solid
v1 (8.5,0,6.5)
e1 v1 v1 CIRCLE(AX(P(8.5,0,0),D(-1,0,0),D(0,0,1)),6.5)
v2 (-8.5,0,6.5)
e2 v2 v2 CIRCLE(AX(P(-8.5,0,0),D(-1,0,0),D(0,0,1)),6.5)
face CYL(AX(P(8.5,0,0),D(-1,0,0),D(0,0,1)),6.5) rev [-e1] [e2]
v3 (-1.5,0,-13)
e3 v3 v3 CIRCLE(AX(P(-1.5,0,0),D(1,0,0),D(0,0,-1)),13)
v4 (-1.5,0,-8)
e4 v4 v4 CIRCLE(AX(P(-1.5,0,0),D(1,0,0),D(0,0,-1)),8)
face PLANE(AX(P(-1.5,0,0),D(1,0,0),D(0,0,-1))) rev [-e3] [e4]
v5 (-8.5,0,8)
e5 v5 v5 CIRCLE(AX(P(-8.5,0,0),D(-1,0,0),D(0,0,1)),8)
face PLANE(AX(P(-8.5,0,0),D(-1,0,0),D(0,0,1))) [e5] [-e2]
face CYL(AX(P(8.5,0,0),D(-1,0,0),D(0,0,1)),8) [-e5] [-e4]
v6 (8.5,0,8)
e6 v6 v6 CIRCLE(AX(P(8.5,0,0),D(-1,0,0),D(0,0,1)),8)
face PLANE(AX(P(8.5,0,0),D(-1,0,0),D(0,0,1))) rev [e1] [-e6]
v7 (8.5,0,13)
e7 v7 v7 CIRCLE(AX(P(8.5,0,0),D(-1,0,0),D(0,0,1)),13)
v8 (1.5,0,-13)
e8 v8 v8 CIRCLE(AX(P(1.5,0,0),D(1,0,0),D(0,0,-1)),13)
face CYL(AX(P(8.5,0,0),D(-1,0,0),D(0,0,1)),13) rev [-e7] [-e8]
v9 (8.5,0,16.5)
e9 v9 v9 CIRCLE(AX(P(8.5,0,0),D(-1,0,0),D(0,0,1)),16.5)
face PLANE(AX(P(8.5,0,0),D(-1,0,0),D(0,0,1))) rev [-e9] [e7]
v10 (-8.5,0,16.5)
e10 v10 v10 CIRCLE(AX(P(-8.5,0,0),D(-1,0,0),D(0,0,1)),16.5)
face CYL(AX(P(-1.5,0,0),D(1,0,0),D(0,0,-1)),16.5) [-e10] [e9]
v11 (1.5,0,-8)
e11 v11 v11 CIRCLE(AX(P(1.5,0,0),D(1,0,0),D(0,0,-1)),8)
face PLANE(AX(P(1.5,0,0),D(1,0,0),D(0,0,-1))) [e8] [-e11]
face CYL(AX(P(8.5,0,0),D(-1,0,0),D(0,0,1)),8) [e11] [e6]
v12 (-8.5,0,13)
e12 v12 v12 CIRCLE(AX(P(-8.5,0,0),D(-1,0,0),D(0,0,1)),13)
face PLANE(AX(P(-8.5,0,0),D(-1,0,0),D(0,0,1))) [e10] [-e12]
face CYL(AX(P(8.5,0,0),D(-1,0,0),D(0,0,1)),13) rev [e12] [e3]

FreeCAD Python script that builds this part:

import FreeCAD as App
import Part
import Sketcher
Q = App.Units.Quantity

doc = App.newDocument("Part")
params = doc.addObject("Spreadsheet::Sheet", "Params")
for row, (alias, value) in enumerate([
    ("sketch1_diameter", "33 mm"),
    ("pad1_length", "1.5 mm"),
    ("pad1_length2", "1.5 mm"),
    ("sketch2_diameter", "33 mm"),
    ("sketch2_diameter2", "26 mm"),
    ("sketch2_diameter3", "16 mm"),
    ("sketch2_diameter4", "13 mm"),
    ("pad2_length", "7 mm"),
    ("pad2_length2", "10 mm"),
    ("sketch3_diameter", "13 mm"),
    ("pocket1_length", "7 mm"),
], start=1):
    params.set(f"A{row}", alias)
    params.set(f"B{row}", "=" + value)
    params.setAlias(f"B{row}", alias)

body = doc.addObject("PartDesign::Body", "Body")

# Sketch on YZ plane
sketch1 = body.newObject("Sketcher::SketchObject", "Sketch")
sketch1.AttachmentSupport = (doc.getObject("YZ_Plane"), [""])
sketch1.MapMode = "FlatFace"
sketch1.addGeometry(Part.Circle(App.Vector(0, 0, 0), App.Vector(0, 0, 1), 16.5), False)
sketch1.addConstraint(Sketcher.Constraint("Coincident", 0, 3, -1, 1))
sketch1.addConstraint(Sketcher.Constraint("Diameter", 0, Q("33 mm")))
sketch1.setExpression("Constraints[1]", "Params.sketch1_diameter")
pad1 = body.newObject("PartDesign::Pad", "Pad")
pad1.Profile = sketch1
pad1.Type = "TwoLengths"
pad1.setExpression("Length", "Params.pad1_length")
pad1.setExpression("Length2", "Params.pad1_length2")

# Sketch on YZ plane
sketch2 = body.newObject("Sketcher::SketchObject", "Sketch001")
sketch2.AttachmentSupport = (doc.getObject("YZ_Plane"), [""])
sketch2.MapMode = "FlatFace"
sketch2.AttachmentOffset = App.Placement(App.Vector(0, 0, -1.5), App.Rotation())
sketch2.addGeometry(Part.Circle(App.Vector(0, 0, 0), App.Vector(0, 0, 1), 16.5), False)
sketch2.addGeometry(Part.Circle(App.Vector(0, 0, 0), App.Vector(0, 0, 1), 13), False)
sketch2.addGeometry(Part.Circle(App.Vector(0, 0, 0), App.Vector(0, 0, 1), 8), False)
sketch2.addGeometry(Part.Circle(App.Vector(0, 0, 0), App.Vector(0, 0, 1), 6.5), False)
sketch2.addConstraint(Sketcher.Constraint("Coincident", 0, 3, -1, 1))
sketch2.addConstraint(Sketcher.Constraint("Coincident", 1, 3, -1, 1))
sketch2.addConstraint(Sketcher.Constraint("Coincident", 2, 3, -1, 1))
sketch2.addConstraint(Sketcher.Constraint("Coincident", 3, 3, -1, 1))
sketch2.addConstraint(Sketcher.Constraint("Diameter", 0, Q("33 mm")))
sketch2.addConstraint(Sketcher.Constraint("Diameter", 1, Q("26 mm")))
sketch2.addConstraint(Sketcher.Constraint("Diameter", 2, Q("16 mm")))
sketch2.addConstraint(Sketcher.Constraint("Diameter", 3, Q("13 mm")))
sketch2.setExpression("Constraints[4]", "Params.sketch2_diameter")
sketch2.setExpression("Constraints[5]", "Params.sketch2_diameter2")
sketch2.setExpression("Constraints[6]", "Params.sketch2_diameter3")
sketch2.setExpression("Constraints[7]", "Params.sketch2_diameter4")
pad2 = body.newObject("PartDesign::Pad", "Pad001")
pad2.Profile = sketch2
pad2.Type = "TwoLengths"
pad2.setExpression("Length", "Params.pad2_length")
pad2.setExpression("Length2", "Params.pad2_length2")
pad2.Reversed = True

# Sketch on YZ plane
sketch3 = body.newObject("Sketcher::SketchObject", "Sketch002")
sketch3.AttachmentSupport = (doc.getObject("YZ_Plane"), [""])
sketch3.MapMode = "FlatFace"
sketch3.AttachmentOffset = App.Placement(App.Vector(0, 0, -1.5), App.Rotation())
sketch3.addGeometry(Part.Circle(App.Vector(0, 0, 0), App.Vector(0, 0, 1), 6.5), False)
sketch3.addConstraint(Sketcher.Constraint("Coincident", 0, 3, -1, 1))
sketch3.addConstraint(Sketcher.Constraint("Diameter", 0, Q("13 mm")))
sketch3.setExpression("Constraints[1]", "Params.sketch3_diameter")
pocket1 = body.newObject("PartDesign::Pocket", "Pocket")
pocket1.Profile = sketch3
pocket1.setExpression("Length", "Params.pocket1_length")
pocket1.Reversed = True

doc.recompute()
